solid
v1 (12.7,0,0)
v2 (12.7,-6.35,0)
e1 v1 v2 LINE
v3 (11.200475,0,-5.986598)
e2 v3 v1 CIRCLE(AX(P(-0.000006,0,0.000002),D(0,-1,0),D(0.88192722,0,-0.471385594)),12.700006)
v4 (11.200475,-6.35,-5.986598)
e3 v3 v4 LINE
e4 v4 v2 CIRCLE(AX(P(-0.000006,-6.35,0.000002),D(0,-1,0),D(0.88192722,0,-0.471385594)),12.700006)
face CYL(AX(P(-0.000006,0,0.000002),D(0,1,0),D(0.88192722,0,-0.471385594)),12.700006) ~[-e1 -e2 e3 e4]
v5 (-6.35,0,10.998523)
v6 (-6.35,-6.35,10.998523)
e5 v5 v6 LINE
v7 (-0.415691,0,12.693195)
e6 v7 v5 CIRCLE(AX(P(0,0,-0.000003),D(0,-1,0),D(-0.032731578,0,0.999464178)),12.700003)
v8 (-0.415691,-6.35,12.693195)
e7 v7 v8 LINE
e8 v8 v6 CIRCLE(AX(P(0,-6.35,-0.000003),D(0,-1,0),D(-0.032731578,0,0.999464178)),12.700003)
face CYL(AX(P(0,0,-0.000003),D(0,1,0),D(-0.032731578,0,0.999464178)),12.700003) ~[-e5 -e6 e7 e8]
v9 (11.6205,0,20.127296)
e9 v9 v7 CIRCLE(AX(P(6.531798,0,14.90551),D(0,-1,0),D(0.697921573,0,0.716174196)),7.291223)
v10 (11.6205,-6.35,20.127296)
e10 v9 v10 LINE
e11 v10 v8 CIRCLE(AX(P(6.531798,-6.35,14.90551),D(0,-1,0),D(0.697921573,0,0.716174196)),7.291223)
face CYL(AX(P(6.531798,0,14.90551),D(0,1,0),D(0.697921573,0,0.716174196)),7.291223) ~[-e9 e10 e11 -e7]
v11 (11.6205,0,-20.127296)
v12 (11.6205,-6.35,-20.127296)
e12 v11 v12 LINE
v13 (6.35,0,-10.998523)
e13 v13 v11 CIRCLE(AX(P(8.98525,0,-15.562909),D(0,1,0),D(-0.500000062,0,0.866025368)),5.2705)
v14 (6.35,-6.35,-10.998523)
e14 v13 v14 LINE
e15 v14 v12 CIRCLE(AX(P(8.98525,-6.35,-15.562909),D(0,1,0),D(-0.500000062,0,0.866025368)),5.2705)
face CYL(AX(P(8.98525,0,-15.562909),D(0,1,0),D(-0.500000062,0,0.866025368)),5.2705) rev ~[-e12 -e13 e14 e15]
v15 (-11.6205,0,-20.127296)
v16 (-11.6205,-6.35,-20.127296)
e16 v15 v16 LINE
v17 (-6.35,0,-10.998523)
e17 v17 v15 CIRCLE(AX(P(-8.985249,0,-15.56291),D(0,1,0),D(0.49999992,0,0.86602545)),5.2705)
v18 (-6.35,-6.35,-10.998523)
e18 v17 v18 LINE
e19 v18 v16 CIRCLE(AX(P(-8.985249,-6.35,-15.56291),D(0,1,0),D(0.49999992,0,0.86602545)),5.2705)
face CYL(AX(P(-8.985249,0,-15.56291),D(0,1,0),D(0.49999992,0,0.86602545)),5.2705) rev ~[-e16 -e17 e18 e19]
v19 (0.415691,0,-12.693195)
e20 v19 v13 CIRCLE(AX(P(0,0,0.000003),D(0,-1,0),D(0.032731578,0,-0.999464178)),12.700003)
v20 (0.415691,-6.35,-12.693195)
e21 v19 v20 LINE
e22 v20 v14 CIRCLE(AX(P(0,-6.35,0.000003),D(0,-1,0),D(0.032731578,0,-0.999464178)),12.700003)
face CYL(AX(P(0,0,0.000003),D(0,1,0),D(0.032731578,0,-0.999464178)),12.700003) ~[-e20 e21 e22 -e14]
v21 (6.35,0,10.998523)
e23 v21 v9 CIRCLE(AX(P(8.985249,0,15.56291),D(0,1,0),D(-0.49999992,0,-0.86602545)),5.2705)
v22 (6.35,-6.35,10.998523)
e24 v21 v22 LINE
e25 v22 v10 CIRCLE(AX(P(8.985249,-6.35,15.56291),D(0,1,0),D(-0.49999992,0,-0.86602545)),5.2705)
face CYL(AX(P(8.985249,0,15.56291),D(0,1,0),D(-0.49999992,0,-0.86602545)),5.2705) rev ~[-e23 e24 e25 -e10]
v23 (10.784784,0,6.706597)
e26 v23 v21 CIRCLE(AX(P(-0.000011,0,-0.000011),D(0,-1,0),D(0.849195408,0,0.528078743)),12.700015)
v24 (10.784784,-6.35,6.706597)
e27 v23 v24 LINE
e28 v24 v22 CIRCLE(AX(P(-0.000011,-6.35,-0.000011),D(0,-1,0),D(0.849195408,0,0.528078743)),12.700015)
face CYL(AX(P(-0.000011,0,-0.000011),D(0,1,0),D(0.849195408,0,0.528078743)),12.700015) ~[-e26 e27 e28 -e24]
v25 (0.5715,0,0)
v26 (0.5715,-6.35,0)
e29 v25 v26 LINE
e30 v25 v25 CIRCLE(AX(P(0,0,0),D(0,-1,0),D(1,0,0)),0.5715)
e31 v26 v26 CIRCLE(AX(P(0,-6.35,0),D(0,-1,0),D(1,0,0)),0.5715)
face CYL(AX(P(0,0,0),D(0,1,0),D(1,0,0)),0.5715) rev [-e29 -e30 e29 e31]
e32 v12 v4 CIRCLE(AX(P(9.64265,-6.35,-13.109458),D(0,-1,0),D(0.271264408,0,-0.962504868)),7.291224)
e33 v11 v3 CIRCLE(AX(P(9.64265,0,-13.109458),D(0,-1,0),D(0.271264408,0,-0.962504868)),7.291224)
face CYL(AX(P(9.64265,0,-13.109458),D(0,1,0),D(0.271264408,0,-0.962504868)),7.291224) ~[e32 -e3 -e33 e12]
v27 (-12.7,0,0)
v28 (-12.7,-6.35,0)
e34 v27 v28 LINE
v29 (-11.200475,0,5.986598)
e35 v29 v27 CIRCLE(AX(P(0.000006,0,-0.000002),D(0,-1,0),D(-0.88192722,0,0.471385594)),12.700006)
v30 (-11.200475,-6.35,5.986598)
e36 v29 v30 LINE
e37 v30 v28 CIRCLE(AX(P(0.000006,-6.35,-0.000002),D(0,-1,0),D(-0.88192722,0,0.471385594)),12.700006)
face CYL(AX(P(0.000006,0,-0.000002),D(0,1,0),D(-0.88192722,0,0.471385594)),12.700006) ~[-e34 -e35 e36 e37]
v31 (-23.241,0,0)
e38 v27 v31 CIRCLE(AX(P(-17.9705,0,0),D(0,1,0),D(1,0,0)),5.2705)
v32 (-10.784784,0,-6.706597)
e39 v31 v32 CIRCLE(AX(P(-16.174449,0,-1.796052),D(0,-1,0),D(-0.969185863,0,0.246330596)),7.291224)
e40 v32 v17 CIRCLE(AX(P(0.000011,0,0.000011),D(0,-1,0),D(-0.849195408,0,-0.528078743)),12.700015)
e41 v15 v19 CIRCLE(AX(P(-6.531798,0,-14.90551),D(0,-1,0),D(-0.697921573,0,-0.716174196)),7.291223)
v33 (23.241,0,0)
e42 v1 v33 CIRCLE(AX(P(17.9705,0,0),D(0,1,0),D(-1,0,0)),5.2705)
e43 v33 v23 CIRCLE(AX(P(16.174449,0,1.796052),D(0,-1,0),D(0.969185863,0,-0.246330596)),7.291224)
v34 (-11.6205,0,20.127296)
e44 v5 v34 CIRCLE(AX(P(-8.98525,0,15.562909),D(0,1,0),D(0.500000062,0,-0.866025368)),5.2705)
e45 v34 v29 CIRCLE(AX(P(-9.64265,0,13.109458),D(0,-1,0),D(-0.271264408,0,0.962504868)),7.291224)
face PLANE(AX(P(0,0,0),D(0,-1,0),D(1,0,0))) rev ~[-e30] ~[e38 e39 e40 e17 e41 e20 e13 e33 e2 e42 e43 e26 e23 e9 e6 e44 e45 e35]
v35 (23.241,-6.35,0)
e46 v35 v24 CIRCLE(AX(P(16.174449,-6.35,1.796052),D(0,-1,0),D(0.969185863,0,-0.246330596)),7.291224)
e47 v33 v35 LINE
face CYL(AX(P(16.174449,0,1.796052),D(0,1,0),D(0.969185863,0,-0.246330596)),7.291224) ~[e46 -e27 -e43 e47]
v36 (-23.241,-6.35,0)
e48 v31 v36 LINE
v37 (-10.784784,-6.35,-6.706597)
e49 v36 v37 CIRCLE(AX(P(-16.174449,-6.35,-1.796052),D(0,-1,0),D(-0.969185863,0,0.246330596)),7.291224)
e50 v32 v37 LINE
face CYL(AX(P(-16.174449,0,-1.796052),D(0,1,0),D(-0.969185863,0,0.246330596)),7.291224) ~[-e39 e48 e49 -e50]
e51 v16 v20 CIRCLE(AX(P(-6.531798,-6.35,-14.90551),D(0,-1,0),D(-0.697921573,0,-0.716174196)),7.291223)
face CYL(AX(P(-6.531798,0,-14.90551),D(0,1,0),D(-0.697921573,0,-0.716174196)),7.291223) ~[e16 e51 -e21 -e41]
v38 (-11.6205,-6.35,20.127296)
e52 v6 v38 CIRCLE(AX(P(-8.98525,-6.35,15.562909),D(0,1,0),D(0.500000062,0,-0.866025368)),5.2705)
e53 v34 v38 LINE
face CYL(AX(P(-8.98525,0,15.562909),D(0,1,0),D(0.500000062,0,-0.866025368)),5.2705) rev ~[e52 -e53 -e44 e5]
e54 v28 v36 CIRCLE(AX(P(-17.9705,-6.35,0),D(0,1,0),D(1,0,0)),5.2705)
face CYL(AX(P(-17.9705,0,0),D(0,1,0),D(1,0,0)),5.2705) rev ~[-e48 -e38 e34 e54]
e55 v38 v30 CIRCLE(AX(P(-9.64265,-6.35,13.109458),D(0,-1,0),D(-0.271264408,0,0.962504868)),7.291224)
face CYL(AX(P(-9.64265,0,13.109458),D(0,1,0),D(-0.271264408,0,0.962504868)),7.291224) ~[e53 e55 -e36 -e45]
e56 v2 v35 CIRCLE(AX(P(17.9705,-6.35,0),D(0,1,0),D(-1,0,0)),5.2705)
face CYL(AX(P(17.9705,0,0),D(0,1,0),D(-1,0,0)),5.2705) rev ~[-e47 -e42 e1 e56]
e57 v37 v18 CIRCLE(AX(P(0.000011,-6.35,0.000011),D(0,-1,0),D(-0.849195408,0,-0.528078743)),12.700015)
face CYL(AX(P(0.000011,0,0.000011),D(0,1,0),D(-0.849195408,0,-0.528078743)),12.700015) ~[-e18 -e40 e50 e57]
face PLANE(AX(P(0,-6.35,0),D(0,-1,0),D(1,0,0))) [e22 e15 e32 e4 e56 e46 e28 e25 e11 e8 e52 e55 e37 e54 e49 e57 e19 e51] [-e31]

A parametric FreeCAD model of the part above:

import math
import FreeCAD as App
import Part
import Sketcher
Q = App.Units.Quantity

doc = App.newDocument("Part")
params = doc.addObject("Spreadsheet::Sheet", "Params")
for row, (alias, value) in enumerate([
    ("sketch1_radius", "0.5000001 in"),
    ("sketch1_diameter", "0.045 in"),
    ("pad1_length", "0.25 in"),
], start=1):
    params.set(f"A{row}", alias)
    params.set(f"B{row}", "=" + value)
    params.setAlias(f"B{row}", alias)

body = doc.addObject("PartDesign::Body", "Body")

sketch1 = doc.addObject("Sketcher::SketchObject", "Sketch")
body.addObject(sketch1)
sketch1.AttachmentSupport = (doc.XZ_Plane, [""])
sketch1.MapMode = "FlatFace"
sketch1.addGeometry([
    Part.ArcOfCircle(Part.Circle(App.Vector(16.174449, 1.796052, 0), App.Vector(0, 0, 1), 7.291224), math.radians(-14.260481), math.radians(137.663222)),
    Part.ArcOfCircle(Part.Circle(App.Vector(-0.000011, -0.000011, 0), App.Vector(0, 0, 1), 12.700015), math.radians(31.875735), math.radians(59.999984)),
    Part.ArcOfCircle(Part.Circle(App.Vector(8.985249, 15.56291, 0), App.Vector(0, 0, 1), 5.2705), math.radians(59.99999), math.radians(240.000005)),
    Part.ArcOfCircle(Part.Circle(App.Vector(6.531798, 14.90551, 0), App.Vector(0, 0, 1), 7.291223), math.radians(45.739512), math.radians(197.663231)),
    Part.ArcOfCircle(Part.Circle(App.Vector(0, -0.000003, 0), App.Vector(0, 0, 1), 12.700003), math.radians(91.875716), math.radians(119.999992)),
    Part.ArcOfCircle(Part.Circle(App.Vector(-8.98525, 15.562909, 0), App.Vector(0, 0, 1), 5.2705), math.radians(120), math.radians(300.000004)),
    Part.ArcOfCircle(Part.Circle(App.Vector(-9.64265, 13.109458, 0), App.Vector(0, 0, 1), 7.291224), math.radians(105.73952), math.radians(257.663223)),
    Part.ArcOfCircle(Part.Circle(App.Vector(0.000006, -0.000002, 0), App.Vector(0, 0, 1), 12.700006), math.radians(151.875724), math.radians(179.999992)),
    Part.ArcOfCircle(Part.Circle(App.Vector(-17.9705, 0, 0), App.Vector(0, 0, 1), 5.2705), math.radians(180), math.radians(360)),
    Part.ArcOfCircle(Part.Circle(App.Vector(-16.174449, -1.796052, 0), App.Vector(0, 0, 1), 7.291224), math.radians(165.739519), math.radians(317.663222)),
    Part.ArcOfCircle(Part.Circle(App.Vector(0.000011, 0.000011, 0), App.Vector(0, 0, 1), 12.700015), math.radians(-148.124265), math.radians(-120.000016)),
    Part.ArcOfCircle(Part.Circle(App.Vector(-8.985249, -15.56291, 0), App.Vector(0, 0, 1), 5.2705), math.radians(-120.00001), math.radians(60.000005)),
    Part.ArcOfCircle(Part.Circle(App.Vector(-6.531798, -14.90551, 0), App.Vector(0, 0, 1), 7.291223), math.radians(-134.260488), math.radians(17.663231)),
    Part.ArcOfCircle(Part.Circle(App.Vector(0, 0.000003, 0), App.Vector(0, 0, 1), 12.700003), math.radians(-88.124284), math.radians(-60.000008)),
    Part.ArcOfCircle(Part.Circle(App.Vector(8.98525, -15.562909, 0), App.Vector(0, 0, 1), 5.2705), math.radians(-60), math.radians(120.000004)),
    Part.ArcOfCircle(Part.Circle(App.Vector(9.64265, -13.109458, 0), App.Vector(0, 0, 1), 7.291224), math.radians(-74.26048), math.radians(77.663223)),
    Part.ArcOfCircle(Part.Circle(App.Vector(-0.000006, 0.000002, 0), App.Vector(0, 0, 1), 12.700006), math.radians(-28.124276), math.radians(-0.000008)),
    Part.ArcOfCircle(Part.Circle(App.Vector(17.9705, 0, 0), App.Vector(0, 0, 1), 5.2705), math.radians(0), math.radians(180)),
    Part.Circle(App.Vector(0, 0, 0), App.Vector(0, 0, 1), 0.5715),
], False)
sketch1.addConstraint([
    Sketcher.Constraint("Coincident", 0, 2, 1, 1),
    Sketcher.Constraint("Tangent", 1, 2, 2, 2),
    Sketcher.Constraint("Coincident", 2, 1, 3, 1),
    Sketcher.Constraint("Coincident", 3, 2, 4, 1),
    Sketcher.Constraint("Tangent", 4, 2, 5, 2),
    Sketcher.Constraint("Coincident", 5, 1, 6, 1),
    Sketcher.Constraint("Coincident", 6, 2, 7, 1),
    Sketcher.Constraint("Tangent", 7, 2, 8, 2),
    Sketcher.Constraint("Coincident", 8, 1, 9, 1),
    Sketcher.Constraint("Coincident", 9, 2, 10, 1),
    Sketcher.Constraint("Tangent", 10, 2, 11, 2),
    Sketcher.Constraint("Coincident", 11, 1, 12, 1),
    Sketcher.Constraint("Coincident", 12, 2, 13, 1),
    Sketcher.Constraint("Tangent", 13, 2, 14, 2),
    Sketcher.Constraint("Coincident", 14, 1, 15, 1),
    Sketcher.Constraint("Coincident", 15, 2, 16, 1),
    Sketcher.Constraint("Tangent", 16, 2, 17, 2),
    Sketcher.Constraint("Coincident", 17, 1, 0, 1),
    Sketcher.Constraint("Coincident", 4, 3, -1, 1),
    Sketcher.Constraint("Coincident", 7, 3, -1, 1),
    Sketcher.Constraint("Coincident", 13, 3, -1, 1),
    Sketcher.Constraint("Coincident", 16, 3, -1, 1),
    Sketcher.Constraint("Coincident", 18, 3, -1, 1),
    Sketcher.Constraint("Equal", 0, 3),
    Sketcher.Constraint("Equal", 2, 5),
    Sketcher.Constraint("Equal", 3, 6),
    Sketcher.Constraint("Equal", 5, 8),
    Sketcher.Constraint("Equal", 6, 9),
    Sketcher.Constraint("Equal", 1, 10),
    Sketcher.Constraint("Equal", 8, 11),
    Sketcher.Constraint("Equal", 9, 12),
    Sketcher.Constraint("Equal", 4, 13),
    Sketcher.Constraint("Equal", 11, 14),
    Sketcher.Constraint("Equal", 12, 15),
    Sketcher.Constraint("Equal", 7, 16),
    Sketcher.Constraint("Equal", 14, 17),
    Sketcher.Constraint("Symmetric", 0, 3, 9, 3, -1, 1),
    Sketcher.Constraint("Symmetric", 1, 3, 10, 3, -1, 1),
    Sketcher.Constraint("Symmetric", 3, 3, 12, 3, -1, 1),
    Sketcher.Constraint("Symmetric", 6, 3, 15, 3, -1, 1),
    Sketcher.Constraint("Symmetric", 2, 3, 5, 3, -2),
    Sketcher.Constraint("PointOnObject", 8, 3, -1),
    Sketcher.Constraint("PointOnObject", 17, 3, -1),
    Sketcher.Constraint("PointOnObject", 8, 1, -1),
    Sketcher.Constraint("Horizontal", 11, 3, 14, 3),
    Sketcher.Constraint("Horizontal", 1, 2, 4, 2),
    Sketcher.Constraint("Horizontal", 2, 1, 5, 1),
    Sketcher.Constraint("Vertical", 5, 3, 11, 3),
    Sketcher.Constraint("Radius", 4, Q("0.5000001 in")),
    Sketcher.Constraint("Diameter", 18, Q("0.045 in")),
    Sketcher.Constraint("DistanceX", 7, 2, -1, 1, Q("0.5 in")),
    Sketcher.Constraint("Radius", 2, Q("0.2075 in")),
    Sketcher.Constraint("DistanceX", -1, 1, 1, 2, Q("0.25 in")),
    Sketcher.Constraint("DistanceX", -1, 1, 2, 1, Q("0.4575 in")),
    Sketcher.Constraint("Radius", 0, Q("7.291224 mm")),
    Sketcher.Constraint("Radius", 1, Q("12.700015 mm")),
    Sketcher.Constraint("DistanceX", 2, 3, 0, 3, Q("7.1892 mm")),
    Sketcher.Constraint("DistanceY", 3, 3, 2, 3, Q("0.6574 mm")),
    Sketcher.Constraint("DistanceX", 6, 3, 5, 3, Q("0.6574 mm")),
])
sketch1.setExpression("Constraints[48]", "Params.sketch1_radius")
sketch1.setExpression("Constraints[49]", "Params.sketch1_diameter")
pad1 = doc.addObject("PartDesign::Pad", "Pad")
body.addObject(pad1)
pad1.Profile = sketch1
pad1.setExpression("Length", "Params.pad1_length")

doc.recompute()
